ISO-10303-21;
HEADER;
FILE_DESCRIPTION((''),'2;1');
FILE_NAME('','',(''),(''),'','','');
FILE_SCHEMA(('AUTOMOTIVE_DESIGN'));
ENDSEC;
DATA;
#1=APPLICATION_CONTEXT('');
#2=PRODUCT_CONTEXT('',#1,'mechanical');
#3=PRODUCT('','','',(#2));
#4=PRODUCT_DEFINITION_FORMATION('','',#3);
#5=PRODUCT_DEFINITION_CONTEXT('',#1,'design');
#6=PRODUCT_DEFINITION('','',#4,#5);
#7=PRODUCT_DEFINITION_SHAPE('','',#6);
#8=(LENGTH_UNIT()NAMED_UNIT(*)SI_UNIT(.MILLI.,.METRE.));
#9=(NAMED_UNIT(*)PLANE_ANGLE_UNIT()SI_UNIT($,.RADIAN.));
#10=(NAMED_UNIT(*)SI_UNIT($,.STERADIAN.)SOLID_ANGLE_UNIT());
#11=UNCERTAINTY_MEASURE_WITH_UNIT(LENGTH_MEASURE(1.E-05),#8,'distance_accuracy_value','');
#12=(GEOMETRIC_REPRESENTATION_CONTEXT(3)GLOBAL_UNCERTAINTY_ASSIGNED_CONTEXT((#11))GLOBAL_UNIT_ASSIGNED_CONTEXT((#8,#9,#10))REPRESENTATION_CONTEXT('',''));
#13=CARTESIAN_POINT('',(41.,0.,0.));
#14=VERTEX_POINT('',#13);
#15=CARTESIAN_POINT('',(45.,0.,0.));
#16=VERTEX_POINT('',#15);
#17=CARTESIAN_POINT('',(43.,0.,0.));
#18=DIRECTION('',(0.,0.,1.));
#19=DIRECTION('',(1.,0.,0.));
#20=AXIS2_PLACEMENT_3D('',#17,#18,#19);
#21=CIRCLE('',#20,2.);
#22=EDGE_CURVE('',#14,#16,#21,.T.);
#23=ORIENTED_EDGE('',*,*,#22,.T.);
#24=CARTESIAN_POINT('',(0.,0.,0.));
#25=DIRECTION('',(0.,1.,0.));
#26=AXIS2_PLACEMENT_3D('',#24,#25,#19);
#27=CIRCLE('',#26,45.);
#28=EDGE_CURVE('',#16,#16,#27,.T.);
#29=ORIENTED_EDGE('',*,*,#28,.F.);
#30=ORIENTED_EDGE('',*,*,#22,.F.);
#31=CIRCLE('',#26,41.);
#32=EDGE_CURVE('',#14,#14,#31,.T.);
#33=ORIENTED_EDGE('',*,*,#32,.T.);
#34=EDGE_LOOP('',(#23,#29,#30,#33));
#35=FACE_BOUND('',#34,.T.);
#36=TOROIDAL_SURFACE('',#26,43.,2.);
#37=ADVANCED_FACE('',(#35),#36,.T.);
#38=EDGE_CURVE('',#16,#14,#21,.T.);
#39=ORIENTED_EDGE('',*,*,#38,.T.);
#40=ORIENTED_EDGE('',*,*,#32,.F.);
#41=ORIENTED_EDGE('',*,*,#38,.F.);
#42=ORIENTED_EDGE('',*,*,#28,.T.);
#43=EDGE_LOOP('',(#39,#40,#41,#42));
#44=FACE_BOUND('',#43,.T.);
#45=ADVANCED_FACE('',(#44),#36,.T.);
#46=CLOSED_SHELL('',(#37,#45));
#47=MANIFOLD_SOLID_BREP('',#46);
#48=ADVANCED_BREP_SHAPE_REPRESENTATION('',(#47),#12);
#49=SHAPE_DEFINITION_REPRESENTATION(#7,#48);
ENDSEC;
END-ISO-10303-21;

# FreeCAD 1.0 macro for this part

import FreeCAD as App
import Part
import Sketcher
from FreeCAD import Vector
Q = App.Units.Quantity

doc = App.newDocument("Part")
body = doc.addObject("PartDesign::Body", "Body")

# Sketch on XY plane
sketch1 = body.newObject("Sketcher::SketchObject", "Sketch")
sketch1.AttachmentSupport = (doc.getObject("XY_Plane"), [""])
sketch1.MapMode = "FlatFace"
sketch1.addGeometry(Part.Circle(Vector(43, 0, 0), Vector(0, 0, 1), 2), False)
sketch1.addConstraint(Sketcher.Constraint("PointOnObject", 0, 3, -1))
sketch1.addConstraint(Sketcher.Constraint("Diameter", 0, Q("4 mm")))
sketch1.addConstraint(Sketcher.Constraint("DistanceX", -1, 1, 0, 3, Q("43 mm")))
revolution = body.newObject("PartDesign::Revolution", "Revolution")
revolution.Profile = sketch1
revolution.ReferenceAxis = (sketch1, ["V_Axis"])
revolution.Angle = 360

doc.recompute()
